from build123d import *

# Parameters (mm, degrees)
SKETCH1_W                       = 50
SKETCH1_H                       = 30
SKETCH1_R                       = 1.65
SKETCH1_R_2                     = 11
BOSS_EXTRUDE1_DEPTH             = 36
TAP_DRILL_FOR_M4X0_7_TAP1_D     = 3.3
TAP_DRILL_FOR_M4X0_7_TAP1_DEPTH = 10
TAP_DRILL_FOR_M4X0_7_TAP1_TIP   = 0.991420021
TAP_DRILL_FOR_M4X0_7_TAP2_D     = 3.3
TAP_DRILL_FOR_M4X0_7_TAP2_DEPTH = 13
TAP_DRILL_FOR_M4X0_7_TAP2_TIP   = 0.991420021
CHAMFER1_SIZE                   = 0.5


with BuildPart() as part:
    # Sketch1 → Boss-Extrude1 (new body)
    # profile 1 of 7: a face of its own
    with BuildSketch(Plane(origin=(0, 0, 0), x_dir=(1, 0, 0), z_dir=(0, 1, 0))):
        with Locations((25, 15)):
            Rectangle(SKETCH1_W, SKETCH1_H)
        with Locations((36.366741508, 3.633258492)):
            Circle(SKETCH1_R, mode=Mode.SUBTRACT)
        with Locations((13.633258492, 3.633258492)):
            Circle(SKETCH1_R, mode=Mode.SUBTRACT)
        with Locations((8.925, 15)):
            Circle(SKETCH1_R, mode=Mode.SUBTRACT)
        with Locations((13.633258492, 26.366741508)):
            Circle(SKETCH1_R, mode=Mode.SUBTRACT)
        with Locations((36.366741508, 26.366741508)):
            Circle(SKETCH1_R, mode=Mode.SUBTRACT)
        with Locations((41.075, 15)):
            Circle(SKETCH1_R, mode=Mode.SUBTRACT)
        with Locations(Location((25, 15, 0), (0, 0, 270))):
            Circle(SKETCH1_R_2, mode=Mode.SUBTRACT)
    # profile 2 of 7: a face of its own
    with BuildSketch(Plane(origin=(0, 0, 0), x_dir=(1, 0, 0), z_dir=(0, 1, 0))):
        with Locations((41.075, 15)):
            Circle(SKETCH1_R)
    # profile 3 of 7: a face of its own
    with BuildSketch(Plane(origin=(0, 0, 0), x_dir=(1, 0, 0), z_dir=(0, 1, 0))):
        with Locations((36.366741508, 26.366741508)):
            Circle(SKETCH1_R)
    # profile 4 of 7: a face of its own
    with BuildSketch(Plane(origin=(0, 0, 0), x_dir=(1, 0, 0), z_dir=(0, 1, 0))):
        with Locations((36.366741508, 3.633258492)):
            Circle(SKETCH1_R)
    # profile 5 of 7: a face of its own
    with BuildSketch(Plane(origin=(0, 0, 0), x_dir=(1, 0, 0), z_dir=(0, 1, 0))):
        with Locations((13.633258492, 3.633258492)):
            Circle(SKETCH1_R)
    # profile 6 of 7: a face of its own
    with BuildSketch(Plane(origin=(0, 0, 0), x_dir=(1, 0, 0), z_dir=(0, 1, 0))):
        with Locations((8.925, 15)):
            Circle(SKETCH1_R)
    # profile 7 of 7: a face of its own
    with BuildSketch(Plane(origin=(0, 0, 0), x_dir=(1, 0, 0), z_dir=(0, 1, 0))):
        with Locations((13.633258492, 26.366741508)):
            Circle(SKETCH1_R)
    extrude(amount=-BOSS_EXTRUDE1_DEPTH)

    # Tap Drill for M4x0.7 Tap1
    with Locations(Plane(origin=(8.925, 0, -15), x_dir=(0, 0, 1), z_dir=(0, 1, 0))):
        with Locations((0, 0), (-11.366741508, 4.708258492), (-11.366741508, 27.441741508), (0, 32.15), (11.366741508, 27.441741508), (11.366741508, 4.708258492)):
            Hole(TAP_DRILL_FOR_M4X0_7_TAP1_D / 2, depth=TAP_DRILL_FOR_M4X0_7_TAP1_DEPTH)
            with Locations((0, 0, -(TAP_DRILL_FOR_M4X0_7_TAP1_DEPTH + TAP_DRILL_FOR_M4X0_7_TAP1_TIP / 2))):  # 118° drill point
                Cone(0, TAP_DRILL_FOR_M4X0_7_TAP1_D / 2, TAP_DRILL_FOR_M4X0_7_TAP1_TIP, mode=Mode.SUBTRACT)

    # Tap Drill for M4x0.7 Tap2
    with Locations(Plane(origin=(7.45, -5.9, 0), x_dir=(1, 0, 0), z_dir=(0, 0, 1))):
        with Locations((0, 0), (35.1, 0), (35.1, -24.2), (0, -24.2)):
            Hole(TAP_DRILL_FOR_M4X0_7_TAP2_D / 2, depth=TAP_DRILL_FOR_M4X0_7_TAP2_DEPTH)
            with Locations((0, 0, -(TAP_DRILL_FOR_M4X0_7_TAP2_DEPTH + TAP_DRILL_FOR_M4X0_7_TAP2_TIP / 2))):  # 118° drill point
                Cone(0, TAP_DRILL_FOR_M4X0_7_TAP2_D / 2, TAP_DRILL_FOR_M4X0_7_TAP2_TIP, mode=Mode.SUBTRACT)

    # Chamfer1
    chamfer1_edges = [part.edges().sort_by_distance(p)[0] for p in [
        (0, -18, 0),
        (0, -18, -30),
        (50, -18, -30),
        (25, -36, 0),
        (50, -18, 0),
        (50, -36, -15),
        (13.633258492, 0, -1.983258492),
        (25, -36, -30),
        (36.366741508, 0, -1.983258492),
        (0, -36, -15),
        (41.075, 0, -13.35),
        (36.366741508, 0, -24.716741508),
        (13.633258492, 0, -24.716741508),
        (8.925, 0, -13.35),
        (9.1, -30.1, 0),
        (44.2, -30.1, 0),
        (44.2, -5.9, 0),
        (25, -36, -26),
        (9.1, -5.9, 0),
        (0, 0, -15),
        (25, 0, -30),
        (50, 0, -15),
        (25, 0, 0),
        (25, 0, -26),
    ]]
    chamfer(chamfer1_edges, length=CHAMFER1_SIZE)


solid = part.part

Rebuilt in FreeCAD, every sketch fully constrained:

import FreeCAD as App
import Part
import Sketcher
from FreeCAD import Vector
Q = App.Units.Quantity


def edges_at(feature, points):
    """Names of the edges that pass closest to the given points."""
    edges = feature.Shape.Edges
    near = lambda p: min(range(len(edges)), key=lambda i: edges[i].distToShape(Part.Vertex(*p))[0])
    return sorted({f"Edge{near(p) + 1}" for p in points})

doc = App.newDocument("Part")
body = doc.addObject("PartDesign::Body", "Body")

sketch1 = body.newObject("Sketcher::SketchObject", "Sketch")
sketch1.AttachmentSupport = (doc.getObject("XZ_Plane"), [""])
sketch1.MapMode = "FlatFace"
sketch1.addGeometry([
    Part.LineSegment(Vector(0, -30, 0), Vector(0, 0, 0)),
    Part.LineSegment(Vector(0, 0, 0), Vector(50, 0, 0)),
    Part.LineSegment(Vector(50, 0, 0), Vector(50, -30, 0)),
    Part.LineSegment(Vector(50, -30, 0), Vector(0, -30, 0)),
    Part.Circle(Vector(25, -15, 0), Vector(0, 0, 1), 11),
], False)
sketch1.addConstraint([
    Sketcher.Constraint("Coincident", 0, 2, 1, 1),
    Sketcher.Constraint("Coincident", 1, 2, 2, 1),
    Sketcher.Constraint("Coincident", 2, 2, 3, 1),
    Sketcher.Constraint("Coincident", 3, 2, 0, 1),
    Sketcher.Constraint("Vertical", 0),
    Sketcher.Constraint("Horizontal", 1),
    Sketcher.Constraint("Vertical", 2),
    Sketcher.Constraint("Horizontal", 3),
    Sketcher.Constraint("Coincident", 0, 2, -1, 1),
    Sketcher.Constraint("Diameter", 4, Q("22 mm")),
    Sketcher.Constraint("DistanceX", 1, 1, 1, 2, Q("50 mm")),
    Sketcher.Constraint("DistanceY", 0, 1, 0, 2, Q("30 mm")),
    Sketcher.Constraint("DistanceX", -1, 1, 4, 3, Q("25 mm")),
    Sketcher.Constraint("DistanceY", 4, 3, -1, 1, Q("15 mm")),
])
pad1 = body.newObject("PartDesign::Pad", "Pad")
pad1.Profile = sketch1
pad1.Length = 36

sketch2 = body.newObject("Sketcher::SketchObject", "Sketch001")
sketch2.AttachmentSupport = (doc.getObject("XZ_Plane"), [""])
sketch2.MapMode = "FlatFace"
sketch2.addGeometry([
    Part.Circle(Vector(8.9, -15, 0), Vector(0, 0, 1), 1.6),
    Part.Circle(Vector(13.6, -26.4, 0), Vector(0, 0, 1), 1.6),
    Part.Circle(Vector(36.4, -26.4, 0), Vector(0, 0, 1), 1.6),
    Part.Circle(Vector(41.1, -15, 0), Vector(0, 0, 1), 1.6),
    Part.Circle(Vector(36.4, -3.6, 0), Vector(0, 0, 1), 1.6),
    Part.Circle(Vector(13.6, -3.6, 0), Vector(0, 0, 1), 1.6),
], False)
sketch2.addConstraint([
    Sketcher.Constraint("Equal", 0, 1),
    Sketcher.Constraint("Equal", 1, 2),
    Sketcher.Constraint("Equal", 2, 3),
    Sketcher.Constraint("Equal", 3, 4),
    Sketcher.Constraint("Equal", 4, 5),
    Sketcher.Constraint("Horizontal", 1, 3, 2, 3),
    Sketcher.Constraint("Horizontal", 0, 3, 3, 3),
    Sketcher.Constraint("Horizontal", 4, 3, 5, 3),
    Sketcher.Constraint("Vertical", 2, 3, 4, 3),
    Sketcher.Constraint("Vertical", 1, 3, 5, 3),
    Sketcher.Constraint("Diameter", 0, Q("3.3 mm")),
    Sketcher.Constraint("DistanceY", 0, 3, -1, 1, Q("15 mm")),
    Sketcher.Constraint("DistanceX", 0, 3, 3, 3, Q("32.15 mm")),
    Sketcher.Constraint("DistanceX", -1, 1, 0, 3, Q("8.925 mm")),
    Sketcher.Constraint("DistanceX", -1, 1, 1, 3, Q("13.633258 mm")),
    Sketcher.Constraint("DistanceY", 1, 3, -1, 1, Q("26.366742 mm")),
    Sketcher.Constraint("DistanceX", -1, 1, 2, 3, Q("36.366742 mm")),
    Sketcher.Constraint("DistanceY", 4, 3, -1, 1, Q("3.633258 mm")),
])
doc.recompute()
hole = body.newObject("PartDesign::Hole", "Hole")
hole.Profile = sketch2
hole.ThreadType = "None"
hole.Diameter = 3.3
hole.DepthType = "Dimension"
hole.Depth = 10
hole.DrillPoint = "Angled"
hole.DrillPointAngle = 118
hole.Reversed = True

sketch3 = body.newObject("Sketcher::SketchObject", "Sketch002")
sketch3.AttachmentSupport = (doc.getObject("XY_Plane"), [""])
sketch3.MapMode = "FlatFace"
sketch3.addGeometry([
    Part.Circle(Vector(7.5, -5.9, 0), Vector(0, 0, 1), 1.6),
    Part.Circle(Vector(42.5, -5.9, 0), Vector(0, 0, 1), 1.6),
    Part.Circle(Vector(42.5, -30.1, 0), Vector(0, 0, 1), 1.6),
    Part.Circle(Vector(7.5, -30.1, 0), Vector(0, 0, 1), 1.6),
], False)
sketch3.addConstraint([
    Sketcher.Constraint("Equal", 0, 1),
    Sketcher.Constraint("Equal", 1, 2),
    Sketcher.Constraint("Equal", 2, 3),
    Sketcher.Constraint("Horizontal", 0, 3, 1, 3),
    Sketcher.Constraint("Horizontal", 2, 3, 3, 3),
    Sketcher.Constraint("Vertical", 1, 3, 2, 3),
    Sketcher.Constraint("Vertical", 0, 3, 3, 3),
    Sketcher.Constraint("Diameter", 0, Q("3.3 mm")),
    Sketcher.Constraint("DistanceY", 0, 3, -1, 1, Q("5.9 mm")),
    Sketcher.Constraint("DistanceY", 2, 3, -1, 1, Q("30.1 mm")),
    Sketcher.Constraint("DistanceX", 0, 3, 1, 3, Q("35.1 mm")),
    Sketcher.Constraint("DistanceX", -1, 1, 0, 3, Q("7.45 mm")),
])
doc.recompute()
hole2 = body.newObject("PartDesign::Hole", "Hole001")
hole2.Profile = sketch3
hole2.ThreadType = "None"
hole2.Diameter = 3.3
hole2.DepthType = "Dimension"
hole2.Depth = 13
hole2.DrillPoint = "Angled"
hole2.DrillPointAngle = 118
doc.recompute()

chamfer = body.newObject("PartDesign::Chamfer", "Chamfer")
chamfer.Base = (hole2, edges_at(hole2, [
    (0, -18, 0),
    (0, -18, -30),
    (50, -18, -30),
    (25, -36, 0),
    (50, -18, 0),
    (50, -36, -15),
    (13.633, 0, -1.983),
    (25, -36, -30),
    (36.367, 0, -1.983),
    (0, -36, -15),
    (41.075, 0, -13.35),
    (36.367, 0, -24.717),
    (13.633, 0, -24.717),
    (8.925, 0, -13.35),
    (9.1, -30.1, 0),
    (44.2, -30.1, 0),
    (44.2, -5.9, 0),
    (25, -36, -26),
    (9.1, -5.9, 0),
    (0, 0, -15),
    (25, 0, -30),
    (50, 0, -15),
    (25, 0, 0),
    (25, 0, -26),
]))
chamfer.Size = 0.5

doc.recompute()
